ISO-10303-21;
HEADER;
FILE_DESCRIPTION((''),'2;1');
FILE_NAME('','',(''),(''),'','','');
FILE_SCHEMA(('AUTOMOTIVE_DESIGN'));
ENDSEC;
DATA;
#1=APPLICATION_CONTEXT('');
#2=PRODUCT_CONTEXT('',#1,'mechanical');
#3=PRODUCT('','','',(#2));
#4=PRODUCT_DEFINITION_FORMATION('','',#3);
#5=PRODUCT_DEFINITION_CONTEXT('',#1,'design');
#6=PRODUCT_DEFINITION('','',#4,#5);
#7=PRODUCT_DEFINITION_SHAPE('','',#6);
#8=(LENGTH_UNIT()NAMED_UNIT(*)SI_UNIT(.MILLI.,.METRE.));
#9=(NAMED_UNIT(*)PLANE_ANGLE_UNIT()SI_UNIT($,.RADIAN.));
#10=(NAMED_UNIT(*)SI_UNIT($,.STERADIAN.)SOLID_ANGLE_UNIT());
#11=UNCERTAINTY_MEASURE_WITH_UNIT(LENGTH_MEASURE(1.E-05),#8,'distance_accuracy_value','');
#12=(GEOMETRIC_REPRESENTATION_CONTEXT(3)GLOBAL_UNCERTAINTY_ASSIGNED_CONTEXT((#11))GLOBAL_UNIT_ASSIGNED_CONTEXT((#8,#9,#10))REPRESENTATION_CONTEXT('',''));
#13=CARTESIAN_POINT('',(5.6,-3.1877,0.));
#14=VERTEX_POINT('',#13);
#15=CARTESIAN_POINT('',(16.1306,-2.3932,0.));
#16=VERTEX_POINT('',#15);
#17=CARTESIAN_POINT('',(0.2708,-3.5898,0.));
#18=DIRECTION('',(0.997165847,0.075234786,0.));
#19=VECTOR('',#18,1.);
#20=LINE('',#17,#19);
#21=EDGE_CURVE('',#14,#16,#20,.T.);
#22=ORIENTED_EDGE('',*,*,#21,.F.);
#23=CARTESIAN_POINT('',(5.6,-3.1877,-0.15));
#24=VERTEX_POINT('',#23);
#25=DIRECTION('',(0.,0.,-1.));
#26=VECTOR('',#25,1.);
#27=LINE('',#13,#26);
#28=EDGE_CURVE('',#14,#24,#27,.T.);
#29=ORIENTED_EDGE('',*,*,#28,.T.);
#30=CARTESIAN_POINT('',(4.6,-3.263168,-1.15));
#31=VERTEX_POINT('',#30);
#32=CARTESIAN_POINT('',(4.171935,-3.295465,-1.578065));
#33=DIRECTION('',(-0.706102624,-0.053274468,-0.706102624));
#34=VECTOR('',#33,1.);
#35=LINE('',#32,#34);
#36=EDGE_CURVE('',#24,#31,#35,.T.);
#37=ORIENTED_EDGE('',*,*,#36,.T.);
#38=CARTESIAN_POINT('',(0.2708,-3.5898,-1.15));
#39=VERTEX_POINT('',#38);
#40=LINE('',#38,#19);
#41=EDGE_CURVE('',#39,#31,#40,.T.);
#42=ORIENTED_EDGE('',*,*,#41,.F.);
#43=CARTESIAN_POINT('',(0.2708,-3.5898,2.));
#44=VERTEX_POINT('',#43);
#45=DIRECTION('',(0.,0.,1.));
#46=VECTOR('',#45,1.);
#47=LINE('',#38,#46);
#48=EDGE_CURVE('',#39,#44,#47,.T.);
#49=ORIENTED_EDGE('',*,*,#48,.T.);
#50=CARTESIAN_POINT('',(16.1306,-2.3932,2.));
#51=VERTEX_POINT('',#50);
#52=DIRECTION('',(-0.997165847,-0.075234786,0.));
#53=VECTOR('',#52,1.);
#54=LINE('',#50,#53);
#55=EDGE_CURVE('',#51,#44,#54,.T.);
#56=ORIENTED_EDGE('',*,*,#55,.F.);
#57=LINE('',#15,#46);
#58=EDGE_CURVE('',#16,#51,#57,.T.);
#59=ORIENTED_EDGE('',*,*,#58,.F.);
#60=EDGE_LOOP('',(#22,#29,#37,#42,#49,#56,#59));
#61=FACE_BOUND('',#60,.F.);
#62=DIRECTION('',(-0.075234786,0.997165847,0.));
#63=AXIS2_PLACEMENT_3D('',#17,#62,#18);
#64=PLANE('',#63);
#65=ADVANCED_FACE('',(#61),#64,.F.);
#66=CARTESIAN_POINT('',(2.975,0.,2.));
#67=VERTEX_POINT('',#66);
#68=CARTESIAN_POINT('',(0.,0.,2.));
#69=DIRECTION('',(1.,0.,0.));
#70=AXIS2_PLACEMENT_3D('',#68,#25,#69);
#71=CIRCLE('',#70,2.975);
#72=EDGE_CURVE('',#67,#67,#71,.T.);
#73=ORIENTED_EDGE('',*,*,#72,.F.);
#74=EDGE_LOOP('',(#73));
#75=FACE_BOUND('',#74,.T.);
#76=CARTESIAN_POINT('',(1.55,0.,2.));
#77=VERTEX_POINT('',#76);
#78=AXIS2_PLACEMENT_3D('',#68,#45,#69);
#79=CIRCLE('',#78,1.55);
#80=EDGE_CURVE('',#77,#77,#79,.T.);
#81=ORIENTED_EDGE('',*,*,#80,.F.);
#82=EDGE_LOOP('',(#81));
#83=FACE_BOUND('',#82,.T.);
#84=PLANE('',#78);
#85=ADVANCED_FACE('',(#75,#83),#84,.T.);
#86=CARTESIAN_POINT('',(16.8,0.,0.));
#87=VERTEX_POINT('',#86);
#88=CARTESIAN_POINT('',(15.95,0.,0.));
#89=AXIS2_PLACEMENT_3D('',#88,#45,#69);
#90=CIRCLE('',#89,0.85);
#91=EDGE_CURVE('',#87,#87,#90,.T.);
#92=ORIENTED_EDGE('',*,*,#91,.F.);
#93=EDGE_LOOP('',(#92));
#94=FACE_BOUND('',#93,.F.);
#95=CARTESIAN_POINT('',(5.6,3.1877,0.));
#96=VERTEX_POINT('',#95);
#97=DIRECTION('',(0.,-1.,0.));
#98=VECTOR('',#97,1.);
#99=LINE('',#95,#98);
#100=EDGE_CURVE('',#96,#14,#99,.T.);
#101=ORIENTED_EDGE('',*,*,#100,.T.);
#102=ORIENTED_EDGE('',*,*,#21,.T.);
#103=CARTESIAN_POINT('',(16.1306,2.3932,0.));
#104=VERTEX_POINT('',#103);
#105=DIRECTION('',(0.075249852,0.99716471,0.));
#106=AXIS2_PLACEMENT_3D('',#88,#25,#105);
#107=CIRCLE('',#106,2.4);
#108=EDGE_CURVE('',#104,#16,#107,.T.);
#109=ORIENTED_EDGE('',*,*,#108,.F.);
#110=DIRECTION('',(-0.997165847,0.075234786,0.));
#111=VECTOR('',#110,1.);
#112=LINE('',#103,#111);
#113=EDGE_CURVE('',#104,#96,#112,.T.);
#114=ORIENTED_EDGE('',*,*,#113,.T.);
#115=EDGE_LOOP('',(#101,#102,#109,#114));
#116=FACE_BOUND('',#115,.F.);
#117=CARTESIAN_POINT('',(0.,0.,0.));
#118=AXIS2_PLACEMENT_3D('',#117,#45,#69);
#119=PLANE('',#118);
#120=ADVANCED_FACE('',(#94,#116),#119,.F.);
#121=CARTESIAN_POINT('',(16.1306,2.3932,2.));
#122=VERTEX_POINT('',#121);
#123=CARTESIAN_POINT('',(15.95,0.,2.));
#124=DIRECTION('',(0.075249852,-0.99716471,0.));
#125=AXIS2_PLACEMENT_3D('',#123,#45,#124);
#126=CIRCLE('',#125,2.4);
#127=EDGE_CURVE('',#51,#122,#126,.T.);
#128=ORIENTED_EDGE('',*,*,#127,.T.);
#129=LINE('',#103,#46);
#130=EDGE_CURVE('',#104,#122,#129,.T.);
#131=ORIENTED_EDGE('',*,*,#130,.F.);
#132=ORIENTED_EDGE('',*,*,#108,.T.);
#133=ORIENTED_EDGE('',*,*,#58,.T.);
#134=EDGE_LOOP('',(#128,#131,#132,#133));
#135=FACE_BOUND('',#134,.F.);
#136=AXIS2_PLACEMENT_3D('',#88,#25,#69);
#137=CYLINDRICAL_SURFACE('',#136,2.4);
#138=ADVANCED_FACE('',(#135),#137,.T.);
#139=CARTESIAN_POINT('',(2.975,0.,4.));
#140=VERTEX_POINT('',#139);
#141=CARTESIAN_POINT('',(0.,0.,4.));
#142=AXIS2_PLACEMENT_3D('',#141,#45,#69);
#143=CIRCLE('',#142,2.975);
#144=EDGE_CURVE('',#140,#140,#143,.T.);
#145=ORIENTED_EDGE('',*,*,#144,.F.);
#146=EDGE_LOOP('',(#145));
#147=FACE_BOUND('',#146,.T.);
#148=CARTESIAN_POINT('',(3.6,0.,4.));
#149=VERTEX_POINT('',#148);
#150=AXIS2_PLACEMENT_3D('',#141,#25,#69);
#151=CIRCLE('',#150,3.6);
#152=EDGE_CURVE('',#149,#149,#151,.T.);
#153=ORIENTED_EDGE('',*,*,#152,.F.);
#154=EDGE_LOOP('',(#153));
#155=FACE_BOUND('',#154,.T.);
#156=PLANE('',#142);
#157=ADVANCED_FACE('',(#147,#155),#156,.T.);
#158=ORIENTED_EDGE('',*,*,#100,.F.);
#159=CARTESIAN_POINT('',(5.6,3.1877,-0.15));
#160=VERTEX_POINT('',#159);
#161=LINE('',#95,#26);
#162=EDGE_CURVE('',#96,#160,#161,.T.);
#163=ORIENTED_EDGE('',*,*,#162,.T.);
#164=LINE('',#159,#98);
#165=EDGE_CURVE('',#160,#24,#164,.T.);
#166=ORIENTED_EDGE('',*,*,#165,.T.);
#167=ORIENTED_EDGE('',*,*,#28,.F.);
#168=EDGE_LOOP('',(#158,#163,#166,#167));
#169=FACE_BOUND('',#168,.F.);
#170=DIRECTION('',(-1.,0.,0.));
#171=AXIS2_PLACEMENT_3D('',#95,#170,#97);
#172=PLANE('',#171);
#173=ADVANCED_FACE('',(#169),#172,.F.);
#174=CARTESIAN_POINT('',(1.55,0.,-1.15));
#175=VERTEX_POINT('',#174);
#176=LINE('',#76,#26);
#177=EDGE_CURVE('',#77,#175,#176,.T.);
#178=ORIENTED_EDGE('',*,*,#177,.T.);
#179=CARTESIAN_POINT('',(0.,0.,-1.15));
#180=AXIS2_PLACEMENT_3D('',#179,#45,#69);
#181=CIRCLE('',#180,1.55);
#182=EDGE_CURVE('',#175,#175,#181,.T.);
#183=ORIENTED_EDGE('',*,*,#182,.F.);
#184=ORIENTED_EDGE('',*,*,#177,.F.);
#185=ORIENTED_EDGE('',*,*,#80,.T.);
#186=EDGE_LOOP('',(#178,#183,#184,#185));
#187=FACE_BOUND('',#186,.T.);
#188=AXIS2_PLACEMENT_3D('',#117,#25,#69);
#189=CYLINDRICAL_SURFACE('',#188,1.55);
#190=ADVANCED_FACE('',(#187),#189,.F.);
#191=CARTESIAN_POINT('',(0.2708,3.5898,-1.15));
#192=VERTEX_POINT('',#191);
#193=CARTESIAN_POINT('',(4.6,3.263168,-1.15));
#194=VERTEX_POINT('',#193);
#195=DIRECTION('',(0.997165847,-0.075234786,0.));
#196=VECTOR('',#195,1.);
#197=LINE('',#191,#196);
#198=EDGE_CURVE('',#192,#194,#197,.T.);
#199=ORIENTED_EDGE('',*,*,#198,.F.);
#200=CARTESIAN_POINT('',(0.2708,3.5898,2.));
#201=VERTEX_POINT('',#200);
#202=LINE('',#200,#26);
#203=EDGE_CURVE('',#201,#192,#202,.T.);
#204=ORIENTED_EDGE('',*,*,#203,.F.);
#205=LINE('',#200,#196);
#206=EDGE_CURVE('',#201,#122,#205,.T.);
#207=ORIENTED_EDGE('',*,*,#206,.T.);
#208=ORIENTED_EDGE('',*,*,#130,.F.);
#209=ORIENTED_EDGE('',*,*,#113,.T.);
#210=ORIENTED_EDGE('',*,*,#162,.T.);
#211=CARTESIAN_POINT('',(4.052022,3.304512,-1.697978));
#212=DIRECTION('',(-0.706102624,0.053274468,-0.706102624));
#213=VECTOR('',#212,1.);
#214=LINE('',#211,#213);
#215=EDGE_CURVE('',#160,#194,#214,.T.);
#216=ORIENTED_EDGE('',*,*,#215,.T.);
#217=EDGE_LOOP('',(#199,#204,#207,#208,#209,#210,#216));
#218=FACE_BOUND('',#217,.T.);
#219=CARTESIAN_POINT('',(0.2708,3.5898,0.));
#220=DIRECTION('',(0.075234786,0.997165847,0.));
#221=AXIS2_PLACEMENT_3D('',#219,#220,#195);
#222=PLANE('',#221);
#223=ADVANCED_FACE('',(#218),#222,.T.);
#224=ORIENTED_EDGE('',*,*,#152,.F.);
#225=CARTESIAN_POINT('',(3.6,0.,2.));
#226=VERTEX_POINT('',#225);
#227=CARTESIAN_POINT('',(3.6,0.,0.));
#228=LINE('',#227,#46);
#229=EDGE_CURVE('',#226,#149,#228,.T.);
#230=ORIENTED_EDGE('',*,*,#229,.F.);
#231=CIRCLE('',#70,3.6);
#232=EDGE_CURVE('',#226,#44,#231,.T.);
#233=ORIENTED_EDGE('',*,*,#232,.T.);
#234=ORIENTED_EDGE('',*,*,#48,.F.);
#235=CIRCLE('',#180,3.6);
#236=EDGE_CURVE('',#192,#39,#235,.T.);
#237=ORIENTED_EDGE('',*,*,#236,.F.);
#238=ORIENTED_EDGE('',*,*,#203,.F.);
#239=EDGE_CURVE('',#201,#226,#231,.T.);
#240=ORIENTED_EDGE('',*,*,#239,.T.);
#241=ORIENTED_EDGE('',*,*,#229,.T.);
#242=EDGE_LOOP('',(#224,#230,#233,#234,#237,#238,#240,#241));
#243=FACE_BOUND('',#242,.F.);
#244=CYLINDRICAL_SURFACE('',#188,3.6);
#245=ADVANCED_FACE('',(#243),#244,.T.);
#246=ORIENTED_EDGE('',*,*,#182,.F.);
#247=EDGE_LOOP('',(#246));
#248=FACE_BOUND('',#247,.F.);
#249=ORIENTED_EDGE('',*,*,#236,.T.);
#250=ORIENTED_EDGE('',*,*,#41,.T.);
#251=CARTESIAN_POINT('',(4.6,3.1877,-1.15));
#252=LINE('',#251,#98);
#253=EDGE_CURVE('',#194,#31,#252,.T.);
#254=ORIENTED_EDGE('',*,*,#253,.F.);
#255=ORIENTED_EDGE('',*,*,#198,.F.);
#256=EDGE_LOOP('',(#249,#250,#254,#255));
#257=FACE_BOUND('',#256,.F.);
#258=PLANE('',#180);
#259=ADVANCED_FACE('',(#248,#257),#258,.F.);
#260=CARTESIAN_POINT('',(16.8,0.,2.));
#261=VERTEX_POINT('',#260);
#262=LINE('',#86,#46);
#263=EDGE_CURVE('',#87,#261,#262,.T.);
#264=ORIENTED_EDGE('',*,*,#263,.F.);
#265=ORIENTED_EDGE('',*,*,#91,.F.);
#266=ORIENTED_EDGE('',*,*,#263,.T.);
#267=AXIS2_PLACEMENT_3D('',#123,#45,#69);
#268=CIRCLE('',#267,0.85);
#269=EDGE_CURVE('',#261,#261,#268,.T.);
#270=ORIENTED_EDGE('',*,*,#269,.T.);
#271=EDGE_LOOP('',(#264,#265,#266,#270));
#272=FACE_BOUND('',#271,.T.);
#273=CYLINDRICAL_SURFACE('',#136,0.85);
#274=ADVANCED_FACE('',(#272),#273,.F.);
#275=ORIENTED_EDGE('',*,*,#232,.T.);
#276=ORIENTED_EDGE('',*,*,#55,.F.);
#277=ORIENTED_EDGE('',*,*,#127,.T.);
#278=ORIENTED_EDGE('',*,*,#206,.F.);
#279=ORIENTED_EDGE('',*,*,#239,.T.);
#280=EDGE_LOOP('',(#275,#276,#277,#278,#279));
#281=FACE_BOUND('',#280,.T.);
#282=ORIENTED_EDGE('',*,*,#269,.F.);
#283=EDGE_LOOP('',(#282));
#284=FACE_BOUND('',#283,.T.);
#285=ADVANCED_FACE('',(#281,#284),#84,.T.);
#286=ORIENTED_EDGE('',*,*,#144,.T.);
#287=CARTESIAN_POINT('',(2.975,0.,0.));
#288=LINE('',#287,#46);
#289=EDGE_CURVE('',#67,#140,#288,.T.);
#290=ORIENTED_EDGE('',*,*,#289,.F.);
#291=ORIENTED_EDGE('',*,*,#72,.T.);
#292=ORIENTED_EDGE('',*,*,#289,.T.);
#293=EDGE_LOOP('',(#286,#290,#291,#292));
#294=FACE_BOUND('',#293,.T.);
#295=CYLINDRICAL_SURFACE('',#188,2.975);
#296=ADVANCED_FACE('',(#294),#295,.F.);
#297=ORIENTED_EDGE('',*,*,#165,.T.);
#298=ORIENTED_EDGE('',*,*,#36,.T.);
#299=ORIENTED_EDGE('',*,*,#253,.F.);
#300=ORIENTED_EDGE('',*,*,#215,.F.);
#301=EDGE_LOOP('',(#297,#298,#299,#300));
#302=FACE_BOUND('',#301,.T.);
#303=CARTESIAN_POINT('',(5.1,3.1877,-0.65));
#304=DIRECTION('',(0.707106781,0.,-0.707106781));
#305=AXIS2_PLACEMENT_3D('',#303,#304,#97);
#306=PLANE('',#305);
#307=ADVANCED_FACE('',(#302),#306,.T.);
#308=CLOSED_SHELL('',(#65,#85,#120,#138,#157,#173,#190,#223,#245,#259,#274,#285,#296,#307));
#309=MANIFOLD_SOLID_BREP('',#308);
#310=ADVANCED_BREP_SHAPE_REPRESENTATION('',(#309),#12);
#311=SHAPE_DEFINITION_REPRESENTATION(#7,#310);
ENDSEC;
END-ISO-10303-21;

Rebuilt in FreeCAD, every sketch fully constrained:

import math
import FreeCAD as App
import Part
import Sketcher
from FreeCAD import Vector


def edges_at(feature, points):
    """Names of the edges that pass closest to the given points."""
    edges = feature.Shape.Edges
    near = lambda p: min(range(len(edges)), key=lambda i: edges[i].distToShape(Part.Vertex(*p))[0])
    return sorted({f"Edge{near(p) + 1}" for p in points})

doc = App.newDocument("Part")
body = doc.addObject("PartDesign::Body", "Body")

# Sketch on XY plane
sketch1 = doc.addObject("Sketcher::SketchObject", "Sketch")
body.addObject(sketch1)
sketch1.AttachmentSupport = (doc.XY_Plane, [""])
sketch1.MapMode = "FlatFace"
sketch1.addGeometry(Part.ArcOfCircle(Part.Circle(Vector(0, 0, 0), Vector(0, 0, 1), 3.6), math.radians(85.686009), math.radians(274.313991)), False)
sketch1.addGeometry(Part.LineSegment(Vector(0.2708, -3.5898, 0), Vector(16.1306, -2.3932, 0)), False)
sketch1.addGeometry(Part.ArcOfCircle(Part.Circle(Vector(15.95, 0, 0), Vector(0, 0, 1), 2.4), math.radians(-85.684422), math.radians(85.684422)), False)
sketch1.addGeometry(Part.LineSegment(Vector(16.1306, 2.3932, 0), Vector(0.2708, 3.5898, 0)), False)
sketch1.addGeometry(Part.Circle(Vector(0, 0, 0), Vector(0, 0, 1), 1.55), False)
sketch1.addGeometry(Part.Circle(Vector(15.95, 0, 0), Vector(0, 0, 1), 0.85), False)
sketch1.addConstraint(Sketcher.Constraint("Tangent", 0, 2, 1, 1))
sketch1.addConstraint(Sketcher.Constraint("Tangent", 1, 2, 2, 1))
sketch1.addConstraint(Sketcher.Constraint("Tangent", 2, 2, 3, 1))
sketch1.addConstraint(Sketcher.Constraint("Tangent", 3, 2, 0, 1))
sketch1.addConstraint(Sketcher.Constraint("Coincident", 0, 3, -1, 1))
sketch1.addConstraint(Sketcher.Constraint("Coincident", 4, 3, -1, 1))
sketch1.addConstraint(Sketcher.Constraint("Coincident", 5, 3, 2, 3))
sketch1.addConstraint(Sketcher.Constraint("PointOnObject", 2, 3, -1))
sketch1.addConstraint(Sketcher.Constraint("Diameter", 4, 3.1))
sketch1.addConstraint(Sketcher.Constraint("Diameter", 5, 1.7))
sketch1.addConstraint(Sketcher.Constraint("Radius", 0, 3.6))
sketch1.addConstraint(Sketcher.Constraint("Radius", 2, 2.4))
sketch1.addConstraint(Sketcher.Constraint("DistanceX", -1, 1, 2, 3, 15.95))
pad1 = doc.addObject("PartDesign::Pad", "Pad")
body.addObject(pad1)
pad1.Profile = sketch1
pad1.Length = 2

# Sketch on XY plane
sketch2 = doc.addObject("Sketcher::SketchObject", "Sketch001")
body.addObject(sketch2)
sketch2.AttachmentSupport = (doc.XY_Plane, [""])
sketch2.MapMode = "FlatFace"
sketch2.addGeometry(Part.ArcOfCircle(Part.Circle(Vector(0, 0, 0), Vector(0, 0, 1), 3.6), math.radians(85.686009), math.radians(274.313991)), False)
sketch2.addGeometry(Part.LineSegment(Vector(0.2708, -3.5898, 0), Vector(5.600001, -3.187719, 0)), False)
sketch2.addGeometry(Part.LineSegment(Vector(5.6, -3.1877, 0), Vector(5.6, 3.1877, 0)), False)
sketch2.addGeometry(Part.LineSegment(Vector(5.600001, 3.187719, 0), Vector(0.2708, 3.5898, 0)), False)
sketch2.addGeometry(Part.Circle(Vector(0, 0, 0), Vector(0, 0, 1), 1.55), False)
sketch2.addConstraint(Sketcher.Constraint("Tangent", 0, 2, 1, 1))
sketch2.addConstraint(Sketcher.Constraint("Coincident", 1, 2, 2, 1))
sketch2.addConstraint(Sketcher.Constraint("Coincident", 2, 2, 3, 1))
sketch2.addConstraint(Sketcher.Constraint("Tangent", 3, 2, 0, 1))
sketch2.addConstraint(Sketcher.Constraint("Vertical", 2))
sketch2.addConstraint(Sketcher.Constraint("Coincident", 0, 3, -1, 1))
sketch2.addConstraint(Sketcher.Constraint("Coincident", 4, 3, -1, 1))
sketch2.addConstraint(Sketcher.Constraint("Vertical", 0, 2, 3, 2))
sketch2.addConstraint(Sketcher.Constraint("Diameter", 4, 3.1))
sketch2.addConstraint(Sketcher.Constraint("Radius", 0, 3.6))
sketch2.addConstraint(Sketcher.Constraint("DistanceX", -1, 1, 1, 2, 5.6))
sketch2.addConstraint(Sketcher.Constraint("DistanceY", 2, 1, 2, 2, 6.3754))
pad2 = doc.addObject("PartDesign::Pad", "Pad001")
body.addObject(pad2)
pad2.Profile = sketch2
pad2.Length = 1.15
pad2.Reversed = True

# Sketch on XY plane
sketch3 = doc.addObject("Sketcher::SketchObject", "Sketch002")
body.addObject(sketch3)
sketch3.AttachmentSupport = (doc.XY_Plane, [""])
sketch3.MapMode = "FlatFace"
sketch3.addGeometry(Part.Circle(Vector(0, 0, 0), Vector(0, 0, 1), 3.6), False)
sketch3.addGeometry(Part.Circle(Vector(0, 0, 0), Vector(0, 0, 1), 2.975), False)
sketch3.addConstraint(Sketcher.Constraint("Coincident", 0, 3, -1, 1))
sketch3.addConstraint(Sketcher.Constraint("Coincident", 1, 3, -1, 1))
sketch3.addConstraint(Sketcher.Constraint("Diameter", 0, 7.2))
sketch3.addConstraint(Sketcher.Constraint("Diameter", 1, 5.95))
pad3 = doc.addObject("PartDesign::Pad", "Pad002")
body.addObject(pad3)
pad3.Profile = sketch3
pad3.Length = 4
doc.recompute()

chamfer = doc.addObject("PartDesign::Chamfer", "Chamfer")
body.addObject(chamfer)
chamfer.Base = (pad3, edges_at(pad3, [(5.6, 0, -1.15)]))
chamfer.Size = 1

doc.recompute()
